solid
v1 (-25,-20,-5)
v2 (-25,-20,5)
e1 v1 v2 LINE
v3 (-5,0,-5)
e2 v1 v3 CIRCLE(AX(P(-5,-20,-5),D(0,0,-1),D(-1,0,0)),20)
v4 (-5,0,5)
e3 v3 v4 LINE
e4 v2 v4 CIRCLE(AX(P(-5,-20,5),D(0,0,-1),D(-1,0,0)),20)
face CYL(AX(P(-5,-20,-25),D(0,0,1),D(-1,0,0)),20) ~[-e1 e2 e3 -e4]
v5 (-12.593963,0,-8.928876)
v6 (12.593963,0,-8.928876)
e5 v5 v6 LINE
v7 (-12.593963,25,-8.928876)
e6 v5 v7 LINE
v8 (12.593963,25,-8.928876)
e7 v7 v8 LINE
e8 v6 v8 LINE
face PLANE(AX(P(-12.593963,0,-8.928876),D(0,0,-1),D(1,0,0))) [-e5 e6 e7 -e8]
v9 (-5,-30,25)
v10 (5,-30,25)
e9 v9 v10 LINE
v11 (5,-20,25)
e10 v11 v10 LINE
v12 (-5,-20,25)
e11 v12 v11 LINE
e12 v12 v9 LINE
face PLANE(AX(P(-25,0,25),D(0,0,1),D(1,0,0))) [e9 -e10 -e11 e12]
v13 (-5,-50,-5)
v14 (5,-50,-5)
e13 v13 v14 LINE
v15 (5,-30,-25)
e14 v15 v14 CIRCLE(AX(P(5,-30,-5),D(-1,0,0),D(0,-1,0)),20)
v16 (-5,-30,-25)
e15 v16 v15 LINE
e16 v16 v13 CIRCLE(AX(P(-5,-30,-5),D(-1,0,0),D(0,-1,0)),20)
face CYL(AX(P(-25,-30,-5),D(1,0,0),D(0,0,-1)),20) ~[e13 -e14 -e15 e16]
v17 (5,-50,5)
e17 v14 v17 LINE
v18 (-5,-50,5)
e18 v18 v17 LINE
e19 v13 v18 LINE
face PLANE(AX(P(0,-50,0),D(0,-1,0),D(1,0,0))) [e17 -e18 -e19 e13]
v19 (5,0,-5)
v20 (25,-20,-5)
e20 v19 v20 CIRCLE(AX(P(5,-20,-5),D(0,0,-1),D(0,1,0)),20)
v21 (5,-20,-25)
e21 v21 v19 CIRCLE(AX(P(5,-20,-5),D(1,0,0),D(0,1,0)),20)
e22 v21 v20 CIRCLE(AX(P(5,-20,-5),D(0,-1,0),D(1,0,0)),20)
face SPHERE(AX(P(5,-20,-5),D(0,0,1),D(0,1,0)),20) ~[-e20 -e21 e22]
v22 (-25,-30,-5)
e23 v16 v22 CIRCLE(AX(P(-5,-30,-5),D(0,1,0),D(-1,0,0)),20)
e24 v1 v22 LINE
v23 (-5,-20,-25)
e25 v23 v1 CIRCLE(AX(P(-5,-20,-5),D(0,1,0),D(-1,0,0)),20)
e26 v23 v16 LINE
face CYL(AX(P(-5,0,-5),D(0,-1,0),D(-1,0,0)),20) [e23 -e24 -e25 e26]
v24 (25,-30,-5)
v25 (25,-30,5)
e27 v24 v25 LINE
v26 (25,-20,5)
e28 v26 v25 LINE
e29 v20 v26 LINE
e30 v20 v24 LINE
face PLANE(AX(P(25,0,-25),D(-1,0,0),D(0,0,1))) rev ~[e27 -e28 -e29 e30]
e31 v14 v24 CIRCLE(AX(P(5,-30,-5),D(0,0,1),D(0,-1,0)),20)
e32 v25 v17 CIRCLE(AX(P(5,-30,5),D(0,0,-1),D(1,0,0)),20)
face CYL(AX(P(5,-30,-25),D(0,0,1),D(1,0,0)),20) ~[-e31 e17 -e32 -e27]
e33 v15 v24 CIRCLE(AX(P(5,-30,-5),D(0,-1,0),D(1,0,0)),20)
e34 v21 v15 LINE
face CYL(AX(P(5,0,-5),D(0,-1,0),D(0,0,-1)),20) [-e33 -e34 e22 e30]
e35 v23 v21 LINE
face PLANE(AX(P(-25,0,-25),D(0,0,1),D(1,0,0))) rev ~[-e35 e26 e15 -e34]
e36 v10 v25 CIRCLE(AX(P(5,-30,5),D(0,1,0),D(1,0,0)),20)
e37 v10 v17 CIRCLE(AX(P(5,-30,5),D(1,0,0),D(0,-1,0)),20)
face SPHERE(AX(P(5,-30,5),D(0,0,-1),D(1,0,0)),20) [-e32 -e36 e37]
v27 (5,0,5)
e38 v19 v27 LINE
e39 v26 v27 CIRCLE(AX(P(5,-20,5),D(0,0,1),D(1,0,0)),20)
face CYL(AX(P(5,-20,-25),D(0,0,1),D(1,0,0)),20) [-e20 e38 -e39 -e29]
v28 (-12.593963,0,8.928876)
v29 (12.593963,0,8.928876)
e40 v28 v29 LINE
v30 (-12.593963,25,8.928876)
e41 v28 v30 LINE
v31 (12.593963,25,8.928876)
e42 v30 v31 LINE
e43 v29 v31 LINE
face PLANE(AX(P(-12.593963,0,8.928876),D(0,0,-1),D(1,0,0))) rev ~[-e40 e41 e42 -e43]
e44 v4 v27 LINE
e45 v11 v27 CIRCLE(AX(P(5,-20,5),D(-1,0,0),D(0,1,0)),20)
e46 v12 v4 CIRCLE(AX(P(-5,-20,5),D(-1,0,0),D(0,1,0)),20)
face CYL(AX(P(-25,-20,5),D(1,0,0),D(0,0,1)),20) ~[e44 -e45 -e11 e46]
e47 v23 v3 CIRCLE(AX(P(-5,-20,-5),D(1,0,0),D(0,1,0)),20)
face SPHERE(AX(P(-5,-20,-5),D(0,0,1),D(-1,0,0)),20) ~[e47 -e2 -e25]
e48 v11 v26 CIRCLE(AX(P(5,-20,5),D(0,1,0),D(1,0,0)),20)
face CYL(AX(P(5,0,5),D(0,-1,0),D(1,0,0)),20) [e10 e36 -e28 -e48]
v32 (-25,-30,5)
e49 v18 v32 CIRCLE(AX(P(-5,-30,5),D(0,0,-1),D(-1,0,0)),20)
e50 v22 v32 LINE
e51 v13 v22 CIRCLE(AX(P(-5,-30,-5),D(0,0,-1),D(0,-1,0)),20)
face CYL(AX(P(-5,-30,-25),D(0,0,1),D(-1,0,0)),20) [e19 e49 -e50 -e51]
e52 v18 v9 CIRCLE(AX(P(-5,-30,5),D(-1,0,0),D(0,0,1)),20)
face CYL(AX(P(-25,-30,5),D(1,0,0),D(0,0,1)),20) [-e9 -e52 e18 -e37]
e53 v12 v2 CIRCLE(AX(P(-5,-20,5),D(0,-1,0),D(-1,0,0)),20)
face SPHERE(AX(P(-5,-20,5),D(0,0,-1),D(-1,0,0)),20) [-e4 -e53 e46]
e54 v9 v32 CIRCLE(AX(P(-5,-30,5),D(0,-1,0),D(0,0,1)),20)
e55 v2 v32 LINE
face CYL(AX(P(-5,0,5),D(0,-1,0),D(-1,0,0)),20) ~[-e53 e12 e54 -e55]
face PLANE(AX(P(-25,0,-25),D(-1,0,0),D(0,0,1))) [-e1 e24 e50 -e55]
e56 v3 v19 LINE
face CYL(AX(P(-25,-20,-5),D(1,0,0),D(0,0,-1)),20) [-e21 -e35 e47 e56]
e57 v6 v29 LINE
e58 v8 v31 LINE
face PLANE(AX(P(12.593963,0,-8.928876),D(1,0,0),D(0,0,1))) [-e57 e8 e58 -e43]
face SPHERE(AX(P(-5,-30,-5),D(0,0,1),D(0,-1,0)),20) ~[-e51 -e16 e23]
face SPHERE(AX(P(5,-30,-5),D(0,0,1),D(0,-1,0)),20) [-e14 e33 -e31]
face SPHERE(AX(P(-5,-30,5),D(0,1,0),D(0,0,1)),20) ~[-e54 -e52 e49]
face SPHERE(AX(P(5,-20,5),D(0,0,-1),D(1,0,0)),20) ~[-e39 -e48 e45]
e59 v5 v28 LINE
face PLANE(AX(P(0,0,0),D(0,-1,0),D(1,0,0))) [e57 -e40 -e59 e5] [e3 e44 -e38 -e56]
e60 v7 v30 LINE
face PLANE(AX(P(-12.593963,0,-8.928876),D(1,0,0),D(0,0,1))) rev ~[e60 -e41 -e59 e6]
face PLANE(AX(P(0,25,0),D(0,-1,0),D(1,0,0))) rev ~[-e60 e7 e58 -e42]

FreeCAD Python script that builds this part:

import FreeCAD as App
import Part
import Sketcher
Q = App.Units.Quantity


def add_polygon(sketch, points):
    """Adds a closed chain of lines whose ends are joined by coincident constraints."""
    first, n = sketch.GeometryCount, len(points)
    for a, b in zip(points, points[1:] + points[:1]):
        sketch.addGeometry(Part.LineSegment(App.Vector(*a, 0), App.Vector(*b, 0)), False)
    for i in range(n):
        sketch.addConstraint(Sketcher.Constraint("Coincident", first + i, 2, first + (i + 1) % n, 1))

doc = App.newDocument("Part")
params = doc.addObject("Spreadsheet::Sheet", "Params")
for row, (alias, value) in enumerate([
    ("sketch1_width", "50 mm"),
    ("pad1_length", "50 mm"),
    ("fillet_radius", "20 mm"),
    ("pad2_length", "25 mm"),
], start=1):
    params.set(f"A{row}", alias)
    params.set(f"B{row}", "=" + value)
    params.setAlias(f"B{row}", alias)

body = doc.addObject("PartDesign::Body", "Body")

# Sketch on XZ plane
sketch1 = doc.addObject("Sketcher::SketchObject", "Sketch")
body.addObject(sketch1)
sketch1.AttachmentSupport = (doc.XZ_Plane, [""])
sketch1.MapMode = "FlatFace"
add_polygon(sketch1, [(-25, 25), (-25, -25), (25, -25), (25, 25)])  # lines 0-3
sketch1.addConstraint([
    Sketcher.Constraint("Vertical", 0),
    Sketcher.Constraint("Horizontal", 1),
    Sketcher.Constraint("Vertical", 2),
    Sketcher.Constraint("Horizontal", 3),
    Sketcher.Constraint("Symmetric", 0, 2, 2, 2, -1, 1),
    Sketcher.Constraint("Equal", 3, 0),
    Sketcher.Constraint("DistanceX", 1, 1, 1, 2, Q("50 mm")),
])
sketch1.setExpression("Constraints[10]", "Params.sketch1_width")
pad1 = doc.addObject("PartDesign::Pad", "Pad")
body.addObject(pad1)
pad1.Profile = sketch1
pad1.setExpression("Length", "Params.pad1_length")
doc.recompute()

fillet = doc.addObject("PartDesign::Fillet", "Fillet")
body.addObject(fillet)
fillet.Base = (pad1, ["Edge1"])
fillet.UseAllEdges = True
fillet.setExpression("Radius", "Params.fillet_radius")

# Sketch on XZ plane
sketch2 = doc.addObject("Sketcher::SketchObject", "Sketch001")
body.addObject(sketch2)
sketch2.AttachmentSupport = (doc.XZ_Plane, [""])
sketch2.MapMode = "FlatFace"
add_polygon(sketch2, [(-13, 9), (-13, -9), (13, -9), (13, 9)])  # lines 0-3
sketch2.addConstraint([
    Sketcher.Constraint("Vertical", 0),
    Sketcher.Constraint("Horizontal", 1),
    Sketcher.Constraint("Vertical", 2),
    Sketcher.Constraint("Horizontal", 3),
    Sketcher.Constraint("Symmetric", 0, 2, 2, 2, -1, 1),
    Sketcher.Constraint("DistanceX", 1, 1, 1, 2, Q("25.187926 mm")),
    Sketcher.Constraint("DistanceY", 0, 2, 0, 1, Q("17.857752 mm")),
])
pad2 = doc.addObject("PartDesign::Pad", "Pad001")
body.addObject(pad2)
pad2.Profile = sketch2
pad2.setExpression("Length", "Params.pad2_length")
pad2.Reversed = True

doc.recompute()
